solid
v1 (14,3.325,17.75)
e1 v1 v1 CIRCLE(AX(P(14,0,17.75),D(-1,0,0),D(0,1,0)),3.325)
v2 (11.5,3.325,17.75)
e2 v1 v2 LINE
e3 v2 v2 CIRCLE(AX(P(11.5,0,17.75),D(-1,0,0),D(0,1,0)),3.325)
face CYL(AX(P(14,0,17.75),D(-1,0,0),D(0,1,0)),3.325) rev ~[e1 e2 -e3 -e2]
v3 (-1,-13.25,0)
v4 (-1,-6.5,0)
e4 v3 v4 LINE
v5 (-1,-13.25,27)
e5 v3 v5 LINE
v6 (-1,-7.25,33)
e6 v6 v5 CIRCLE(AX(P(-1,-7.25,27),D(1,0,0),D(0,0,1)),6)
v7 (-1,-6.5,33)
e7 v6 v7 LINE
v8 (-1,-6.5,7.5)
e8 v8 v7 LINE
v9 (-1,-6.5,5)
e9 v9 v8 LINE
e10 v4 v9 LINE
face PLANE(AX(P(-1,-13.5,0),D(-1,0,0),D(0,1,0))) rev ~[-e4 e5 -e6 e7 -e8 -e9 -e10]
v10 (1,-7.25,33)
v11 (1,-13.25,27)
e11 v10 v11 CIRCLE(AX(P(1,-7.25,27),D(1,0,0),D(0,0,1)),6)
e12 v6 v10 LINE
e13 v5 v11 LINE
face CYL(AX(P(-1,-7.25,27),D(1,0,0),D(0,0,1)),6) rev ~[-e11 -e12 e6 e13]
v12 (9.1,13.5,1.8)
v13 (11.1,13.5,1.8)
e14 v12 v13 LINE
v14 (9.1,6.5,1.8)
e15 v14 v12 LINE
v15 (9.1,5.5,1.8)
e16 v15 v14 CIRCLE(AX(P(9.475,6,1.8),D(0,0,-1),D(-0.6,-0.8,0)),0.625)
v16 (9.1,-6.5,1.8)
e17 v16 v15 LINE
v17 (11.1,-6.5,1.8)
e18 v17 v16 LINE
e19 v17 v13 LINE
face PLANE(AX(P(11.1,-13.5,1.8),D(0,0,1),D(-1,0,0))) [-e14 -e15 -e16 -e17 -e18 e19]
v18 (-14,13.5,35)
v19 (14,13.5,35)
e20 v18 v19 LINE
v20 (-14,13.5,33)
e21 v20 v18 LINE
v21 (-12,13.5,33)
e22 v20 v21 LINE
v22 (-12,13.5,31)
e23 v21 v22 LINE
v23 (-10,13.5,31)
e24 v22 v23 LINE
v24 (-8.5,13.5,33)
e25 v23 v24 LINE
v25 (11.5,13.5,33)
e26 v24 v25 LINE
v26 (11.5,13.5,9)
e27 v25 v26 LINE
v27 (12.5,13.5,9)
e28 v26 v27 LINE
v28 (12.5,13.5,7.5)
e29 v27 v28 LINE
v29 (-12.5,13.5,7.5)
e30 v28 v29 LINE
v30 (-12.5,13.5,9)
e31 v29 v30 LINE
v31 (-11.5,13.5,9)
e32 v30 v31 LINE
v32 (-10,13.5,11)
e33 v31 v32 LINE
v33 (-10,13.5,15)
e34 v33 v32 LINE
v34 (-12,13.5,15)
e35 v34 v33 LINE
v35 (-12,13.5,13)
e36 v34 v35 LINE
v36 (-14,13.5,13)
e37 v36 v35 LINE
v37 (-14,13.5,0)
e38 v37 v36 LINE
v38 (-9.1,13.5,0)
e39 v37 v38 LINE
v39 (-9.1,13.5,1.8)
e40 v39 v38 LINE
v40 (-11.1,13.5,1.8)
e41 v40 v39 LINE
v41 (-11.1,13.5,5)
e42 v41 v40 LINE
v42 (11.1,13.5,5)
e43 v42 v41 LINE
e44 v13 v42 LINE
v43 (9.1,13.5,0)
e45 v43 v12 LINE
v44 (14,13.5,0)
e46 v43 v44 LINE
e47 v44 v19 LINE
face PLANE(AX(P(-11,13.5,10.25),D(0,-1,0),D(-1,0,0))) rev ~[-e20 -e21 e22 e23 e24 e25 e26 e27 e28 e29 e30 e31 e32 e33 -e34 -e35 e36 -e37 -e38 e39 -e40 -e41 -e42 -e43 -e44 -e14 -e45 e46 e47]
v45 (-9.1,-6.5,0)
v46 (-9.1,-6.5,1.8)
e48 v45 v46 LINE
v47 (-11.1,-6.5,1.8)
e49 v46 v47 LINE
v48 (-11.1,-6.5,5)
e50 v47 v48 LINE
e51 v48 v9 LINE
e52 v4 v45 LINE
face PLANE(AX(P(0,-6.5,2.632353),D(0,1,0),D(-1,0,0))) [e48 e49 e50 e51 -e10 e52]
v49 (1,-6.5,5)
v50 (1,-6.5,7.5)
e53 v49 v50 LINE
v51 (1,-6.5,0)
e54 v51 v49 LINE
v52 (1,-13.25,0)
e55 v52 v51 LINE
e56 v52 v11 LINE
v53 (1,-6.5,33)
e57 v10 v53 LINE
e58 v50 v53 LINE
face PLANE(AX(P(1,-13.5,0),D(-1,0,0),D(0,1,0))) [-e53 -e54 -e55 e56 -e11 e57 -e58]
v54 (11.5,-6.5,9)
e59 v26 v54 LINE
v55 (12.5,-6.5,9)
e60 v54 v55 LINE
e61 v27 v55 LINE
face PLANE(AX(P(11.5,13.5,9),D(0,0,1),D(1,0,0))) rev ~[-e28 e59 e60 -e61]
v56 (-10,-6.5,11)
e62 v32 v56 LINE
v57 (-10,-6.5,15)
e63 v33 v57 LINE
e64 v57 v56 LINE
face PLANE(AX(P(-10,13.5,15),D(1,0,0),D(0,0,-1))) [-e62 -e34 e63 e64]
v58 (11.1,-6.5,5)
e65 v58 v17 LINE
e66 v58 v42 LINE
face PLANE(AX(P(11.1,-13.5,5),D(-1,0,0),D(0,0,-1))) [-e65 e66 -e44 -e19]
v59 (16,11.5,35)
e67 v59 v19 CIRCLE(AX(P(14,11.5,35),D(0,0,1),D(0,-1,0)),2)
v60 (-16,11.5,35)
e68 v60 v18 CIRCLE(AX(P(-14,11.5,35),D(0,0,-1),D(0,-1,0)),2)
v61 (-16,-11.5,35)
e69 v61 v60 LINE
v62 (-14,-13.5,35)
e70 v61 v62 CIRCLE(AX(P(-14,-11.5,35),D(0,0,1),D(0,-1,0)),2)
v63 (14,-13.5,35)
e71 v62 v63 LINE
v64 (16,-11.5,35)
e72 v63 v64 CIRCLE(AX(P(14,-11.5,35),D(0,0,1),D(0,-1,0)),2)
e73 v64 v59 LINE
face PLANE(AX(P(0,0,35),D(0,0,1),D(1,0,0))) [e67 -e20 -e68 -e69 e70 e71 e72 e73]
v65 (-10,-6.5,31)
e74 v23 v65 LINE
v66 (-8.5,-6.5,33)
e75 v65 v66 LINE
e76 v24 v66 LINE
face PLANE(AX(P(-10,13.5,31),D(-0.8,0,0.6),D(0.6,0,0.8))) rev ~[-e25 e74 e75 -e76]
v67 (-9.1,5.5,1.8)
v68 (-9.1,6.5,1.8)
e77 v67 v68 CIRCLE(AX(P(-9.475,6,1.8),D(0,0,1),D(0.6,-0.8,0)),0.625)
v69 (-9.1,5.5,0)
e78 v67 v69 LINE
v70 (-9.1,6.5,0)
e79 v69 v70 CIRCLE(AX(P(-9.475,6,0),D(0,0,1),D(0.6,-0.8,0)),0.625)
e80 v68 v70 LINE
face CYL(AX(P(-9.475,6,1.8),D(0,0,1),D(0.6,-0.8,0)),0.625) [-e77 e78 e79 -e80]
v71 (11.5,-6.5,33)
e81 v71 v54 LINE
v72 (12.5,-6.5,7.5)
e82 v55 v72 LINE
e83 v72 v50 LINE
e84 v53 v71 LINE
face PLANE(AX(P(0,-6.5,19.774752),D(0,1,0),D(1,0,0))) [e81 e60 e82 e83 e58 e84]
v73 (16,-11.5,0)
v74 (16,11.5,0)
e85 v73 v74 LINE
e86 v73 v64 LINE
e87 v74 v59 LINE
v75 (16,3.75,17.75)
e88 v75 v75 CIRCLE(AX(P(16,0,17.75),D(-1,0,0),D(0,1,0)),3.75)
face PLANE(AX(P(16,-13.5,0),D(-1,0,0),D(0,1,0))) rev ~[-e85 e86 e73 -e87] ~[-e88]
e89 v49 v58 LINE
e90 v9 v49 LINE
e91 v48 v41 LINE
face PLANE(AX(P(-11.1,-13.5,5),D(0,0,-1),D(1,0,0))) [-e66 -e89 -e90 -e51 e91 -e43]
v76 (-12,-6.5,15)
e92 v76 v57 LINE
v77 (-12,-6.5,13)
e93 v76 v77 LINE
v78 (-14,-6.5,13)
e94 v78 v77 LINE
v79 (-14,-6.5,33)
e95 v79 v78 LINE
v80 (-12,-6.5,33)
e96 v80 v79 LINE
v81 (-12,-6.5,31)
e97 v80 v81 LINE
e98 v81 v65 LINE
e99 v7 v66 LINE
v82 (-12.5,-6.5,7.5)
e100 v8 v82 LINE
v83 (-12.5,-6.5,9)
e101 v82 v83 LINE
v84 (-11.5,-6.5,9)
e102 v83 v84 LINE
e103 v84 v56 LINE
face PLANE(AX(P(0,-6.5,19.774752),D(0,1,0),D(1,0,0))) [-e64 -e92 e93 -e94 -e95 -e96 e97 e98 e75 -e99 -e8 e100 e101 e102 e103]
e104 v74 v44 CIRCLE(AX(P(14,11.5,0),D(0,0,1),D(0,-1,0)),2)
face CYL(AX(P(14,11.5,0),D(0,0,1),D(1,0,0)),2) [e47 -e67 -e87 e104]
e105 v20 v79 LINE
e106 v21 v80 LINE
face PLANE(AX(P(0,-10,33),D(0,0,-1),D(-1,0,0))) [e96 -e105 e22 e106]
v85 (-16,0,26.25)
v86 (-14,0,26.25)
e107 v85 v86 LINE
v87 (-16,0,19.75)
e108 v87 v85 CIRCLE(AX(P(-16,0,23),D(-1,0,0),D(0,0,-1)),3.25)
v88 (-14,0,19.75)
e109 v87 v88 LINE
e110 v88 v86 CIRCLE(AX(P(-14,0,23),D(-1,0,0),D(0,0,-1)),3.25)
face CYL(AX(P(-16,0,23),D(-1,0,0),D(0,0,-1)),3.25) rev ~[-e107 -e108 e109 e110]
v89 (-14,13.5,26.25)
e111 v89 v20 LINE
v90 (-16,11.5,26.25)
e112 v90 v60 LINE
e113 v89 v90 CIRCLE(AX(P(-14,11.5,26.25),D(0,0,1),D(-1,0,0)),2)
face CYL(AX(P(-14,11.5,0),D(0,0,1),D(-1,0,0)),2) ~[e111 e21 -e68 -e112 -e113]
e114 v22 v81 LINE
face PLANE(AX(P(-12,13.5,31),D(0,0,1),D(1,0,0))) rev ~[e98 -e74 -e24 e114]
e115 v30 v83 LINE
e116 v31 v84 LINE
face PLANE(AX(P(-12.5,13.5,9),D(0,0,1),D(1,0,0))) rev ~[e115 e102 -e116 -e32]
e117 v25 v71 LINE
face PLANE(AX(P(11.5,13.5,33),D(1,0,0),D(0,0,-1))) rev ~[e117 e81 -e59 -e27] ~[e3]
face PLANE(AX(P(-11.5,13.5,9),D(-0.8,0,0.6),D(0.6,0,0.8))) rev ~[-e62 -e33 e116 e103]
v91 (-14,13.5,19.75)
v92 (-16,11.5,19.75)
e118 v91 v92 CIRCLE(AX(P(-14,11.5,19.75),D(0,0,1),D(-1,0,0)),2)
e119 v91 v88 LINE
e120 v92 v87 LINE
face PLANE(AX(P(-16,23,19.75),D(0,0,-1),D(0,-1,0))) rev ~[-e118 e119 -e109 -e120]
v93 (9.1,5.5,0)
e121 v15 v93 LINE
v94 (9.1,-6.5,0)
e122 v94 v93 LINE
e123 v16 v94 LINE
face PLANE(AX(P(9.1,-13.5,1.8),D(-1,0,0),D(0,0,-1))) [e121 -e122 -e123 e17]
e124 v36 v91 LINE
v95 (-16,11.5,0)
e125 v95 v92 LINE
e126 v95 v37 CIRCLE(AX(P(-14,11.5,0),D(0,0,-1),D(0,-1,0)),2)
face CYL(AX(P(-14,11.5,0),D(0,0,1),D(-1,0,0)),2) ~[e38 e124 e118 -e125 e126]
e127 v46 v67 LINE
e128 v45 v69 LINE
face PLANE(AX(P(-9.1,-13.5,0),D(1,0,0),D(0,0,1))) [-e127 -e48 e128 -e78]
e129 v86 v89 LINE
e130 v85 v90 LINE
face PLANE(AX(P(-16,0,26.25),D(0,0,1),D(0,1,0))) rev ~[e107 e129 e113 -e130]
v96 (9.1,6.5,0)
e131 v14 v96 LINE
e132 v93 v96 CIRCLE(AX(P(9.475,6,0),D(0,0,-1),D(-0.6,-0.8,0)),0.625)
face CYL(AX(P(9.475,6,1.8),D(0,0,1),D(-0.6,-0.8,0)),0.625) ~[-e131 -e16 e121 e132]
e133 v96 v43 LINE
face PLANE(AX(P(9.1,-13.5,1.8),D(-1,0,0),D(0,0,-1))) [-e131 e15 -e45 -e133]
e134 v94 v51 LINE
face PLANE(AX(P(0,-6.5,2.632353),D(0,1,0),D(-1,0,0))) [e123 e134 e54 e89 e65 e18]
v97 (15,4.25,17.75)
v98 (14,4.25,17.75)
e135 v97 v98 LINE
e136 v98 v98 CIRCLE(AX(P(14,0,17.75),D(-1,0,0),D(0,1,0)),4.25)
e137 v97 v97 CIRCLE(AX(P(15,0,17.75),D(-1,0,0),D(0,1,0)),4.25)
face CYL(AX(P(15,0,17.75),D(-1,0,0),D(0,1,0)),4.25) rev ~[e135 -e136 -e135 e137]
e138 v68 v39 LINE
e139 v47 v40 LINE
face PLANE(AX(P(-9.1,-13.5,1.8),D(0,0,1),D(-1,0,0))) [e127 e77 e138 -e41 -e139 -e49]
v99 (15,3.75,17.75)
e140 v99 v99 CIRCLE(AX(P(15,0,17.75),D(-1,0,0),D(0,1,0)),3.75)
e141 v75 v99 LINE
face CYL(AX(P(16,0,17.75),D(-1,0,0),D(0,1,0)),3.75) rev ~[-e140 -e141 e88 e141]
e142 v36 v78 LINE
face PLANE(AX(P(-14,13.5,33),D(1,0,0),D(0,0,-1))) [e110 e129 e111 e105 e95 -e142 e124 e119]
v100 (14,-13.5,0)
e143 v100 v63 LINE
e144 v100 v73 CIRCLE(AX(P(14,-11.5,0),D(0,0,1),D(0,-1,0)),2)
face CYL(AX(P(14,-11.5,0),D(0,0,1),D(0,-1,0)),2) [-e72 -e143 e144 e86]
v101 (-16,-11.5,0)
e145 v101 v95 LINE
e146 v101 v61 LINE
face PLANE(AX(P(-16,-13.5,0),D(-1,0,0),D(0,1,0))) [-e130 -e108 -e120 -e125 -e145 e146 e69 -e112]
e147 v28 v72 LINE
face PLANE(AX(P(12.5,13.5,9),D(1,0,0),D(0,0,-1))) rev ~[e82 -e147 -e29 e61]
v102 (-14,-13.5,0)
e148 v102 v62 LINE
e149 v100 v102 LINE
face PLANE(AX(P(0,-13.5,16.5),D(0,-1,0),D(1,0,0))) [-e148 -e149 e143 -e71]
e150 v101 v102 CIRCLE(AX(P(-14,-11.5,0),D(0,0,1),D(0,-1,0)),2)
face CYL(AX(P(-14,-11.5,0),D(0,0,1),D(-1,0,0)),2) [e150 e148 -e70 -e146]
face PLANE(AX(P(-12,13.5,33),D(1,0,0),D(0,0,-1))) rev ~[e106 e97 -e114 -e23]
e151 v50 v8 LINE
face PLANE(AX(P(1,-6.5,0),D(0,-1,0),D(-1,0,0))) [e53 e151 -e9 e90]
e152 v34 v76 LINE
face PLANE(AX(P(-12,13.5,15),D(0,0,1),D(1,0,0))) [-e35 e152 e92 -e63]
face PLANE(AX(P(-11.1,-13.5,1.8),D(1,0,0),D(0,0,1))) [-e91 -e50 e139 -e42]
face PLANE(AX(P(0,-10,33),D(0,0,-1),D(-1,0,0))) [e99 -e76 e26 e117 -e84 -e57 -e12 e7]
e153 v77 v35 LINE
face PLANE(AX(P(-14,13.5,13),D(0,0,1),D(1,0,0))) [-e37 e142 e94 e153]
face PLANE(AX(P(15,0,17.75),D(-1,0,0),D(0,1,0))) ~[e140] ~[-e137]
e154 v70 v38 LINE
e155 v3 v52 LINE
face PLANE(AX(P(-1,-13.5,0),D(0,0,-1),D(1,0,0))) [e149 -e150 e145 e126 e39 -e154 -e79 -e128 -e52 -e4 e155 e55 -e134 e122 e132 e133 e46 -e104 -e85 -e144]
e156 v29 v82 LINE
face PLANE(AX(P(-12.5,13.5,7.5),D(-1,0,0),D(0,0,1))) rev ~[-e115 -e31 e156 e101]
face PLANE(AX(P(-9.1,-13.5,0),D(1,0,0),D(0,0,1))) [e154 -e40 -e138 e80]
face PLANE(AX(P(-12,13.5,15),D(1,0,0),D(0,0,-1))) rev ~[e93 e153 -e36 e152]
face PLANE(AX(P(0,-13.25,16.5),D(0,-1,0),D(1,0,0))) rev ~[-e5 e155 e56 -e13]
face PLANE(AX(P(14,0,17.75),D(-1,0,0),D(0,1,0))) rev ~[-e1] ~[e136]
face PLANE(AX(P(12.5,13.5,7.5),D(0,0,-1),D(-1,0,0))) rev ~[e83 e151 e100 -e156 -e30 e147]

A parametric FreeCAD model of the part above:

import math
import FreeCAD as App
import Part
import Sketcher
from FreeCAD import Vector
Q = App.Units.Quantity


def edges_at(feature, points):
    """Names of the edges that pass closest to the given points."""
    edges = feature.Shape.Edges
    near = lambda p: min(range(len(edges)), key=lambda i: edges[i].distToShape(Part.Vertex(*p))[0])
    return sorted({f"Edge{near(p) + 1}" for p in points})

doc = App.newDocument("Part")
body = doc.addObject("PartDesign::Body", "Body")

# Sketch on XY plane
sketch1 = body.newObject("Sketcher::SketchObject", "Sketch")
sketch1.AttachmentSupport = (doc.getObject("XY_Plane"), [""])
sketch1.MapMode = "FlatFace"
sketch1.addGeometry(Part.LineSegment(Vector(-16, 14, 0), Vector(-16, -14, 0)), False)
sketch1.addGeometry(Part.LineSegment(Vector(-16, -14, 0), Vector(16, -14, 0)), False)
sketch1.addGeometry(Part.LineSegment(Vector(16, -14, 0), Vector(16, 14, 0)), False)
sketch1.addGeometry(Part.LineSegment(Vector(16, 14, 0), Vector(-16, 14, 0)), False)
sketch1.addConstraint(Sketcher.Constraint("Coincident", 0, 2, 1, 1))
sketch1.addConstraint(Sketcher.Constraint("Coincident", 1, 2, 2, 1))
sketch1.addConstraint(Sketcher.Constraint("Coincident", 2, 2, 3, 1))
sketch1.addConstraint(Sketcher.Constraint("Coincident", 3, 2, 0, 1))
sketch1.addConstraint(Sketcher.Constraint("Vertical", 0))
sketch1.addConstraint(Sketcher.Constraint("Horizontal", 1))
sketch1.addConstraint(Sketcher.Constraint("Vertical", 2))
sketch1.addConstraint(Sketcher.Constraint("Horizontal", 3))
sketch1.addConstraint(Sketcher.Constraint("Symmetric", 0, 2, 2, 2, -1, 1))
sketch1.addConstraint(Sketcher.Constraint("DistanceX", 1, 1, 1, 2, Q("32 mm")))
sketch1.addConstraint(Sketcher.Constraint("DistanceY", 0, 2, 0, 1, Q("27 mm")))
pad1 = body.newObject("PartDesign::Pad", "Pad")
pad1.Profile = sketch1
pad1.Length = 35
doc.recompute()

fillet = body.newObject("PartDesign::Fillet", "Fillet")
fillet.Base = (pad1, edges_at(pad1, [
    (16, -13.5, 17.5),
    (-16, -13.5, 17.5),
    (-16, 13.5, 17.5),
    (16, 13.5, 17.5),
]))
fillet.Radius = 2

# Sketch on XZ plane
sketch2 = body.newObject("Sketcher::SketchObject", "Sketch001")
sketch2.AttachmentSupport = (doc.getObject("XZ_Plane"), [""])
sketch2.MapMode = "FlatFace"
sketch2.AttachmentOffset = App.Placement(Vector(0, 0, 13.5), App.Rotation())
sketch2.addGeometry(Part.LineSegment(Vector(-9.1, 1.8, 0), Vector(-9.1, 0, 0)), False)
sketch2.addGeometry(Part.LineSegment(Vector(-9.1, 0, 0), Vector(9.1, 0, 0)), False)
sketch2.addGeometry(Part.LineSegment(Vector(9.1, 0, 0), Vector(9.1, 1.8, 0)), False)
sketch2.addGeometry(Part.LineSegment(Vector(9.1, 1.8, 0), Vector(11.1, 1.8, 0)), False)
sketch2.addGeometry(Part.LineSegment(Vector(11.1, 1.8, 0), Vector(11.1, 5, 0)), False)
sketch2.addGeometry(Part.LineSegment(Vector(11.1, 5, 0), Vector(-11.1, 5, 0)), False)
sketch2.addGeometry(Part.LineSegment(Vector(-11.1, 5, 0), Vector(-11.1, 1.8, 0)), False)
sketch2.addGeometry(Part.LineSegment(Vector(-11.1, 1.8, 0), Vector(-9.1, 1.8, 0)), False)
sketch2.addConstraint(Sketcher.Constraint("Coincident", 0, 2, 1, 1))
sketch2.addConstraint(Sketcher.Constraint("Coincident", 1, 2, 2, 1))
sketch2.addConstraint(Sketcher.Constraint("Coincident", 2, 2, 3, 1))
sketch2.addConstraint(Sketcher.Constraint("Coincident", 3, 2, 4, 1))
sketch2.addConstraint(Sketcher.Constraint("Coincident", 4, 2, 5, 1))
sketch2.addConstraint(Sketcher.Constraint("Coincident", 5, 2, 6, 1))
sketch2.addConstraint(Sketcher.Constraint("Coincident", 6, 2, 7, 1))
sketch2.addConstraint(Sketcher.Constraint("Coincident", 7, 2, 0, 1))
sketch2.addConstraint(Sketcher.Constraint("Vertical", 0))
sketch2.addConstraint(Sketcher.Constraint("Horizontal", 1))
sketch2.addConstraint(Sketcher.Constraint("Vertical", 2))
sketch2.addConstraint(Sketcher.Constraint("Horizontal", 3))
sketch2.addConstraint(Sketcher.Constraint("Vertical", 4))
sketch2.addConstraint(Sketcher.Constraint("Horizontal", 5))
sketch2.addConstraint(Sketcher.Constraint("Vertical", 6))
sketch2.addConstraint(Sketcher.Constraint("Horizontal", 7))
sketch2.addConstraint(Sketcher.Constraint("Symmetric", 0, 2, 1, 2, -1, 1))
sketch2.addConstraint(Sketcher.Constraint("Symmetric", 3, 2, 6, 2, -2))
sketch2.addConstraint(Sketcher.Constraint("DistanceX", 3, 1, 3, 2, Q("2 mm")))
sketch2.addConstraint(Sketcher.Constraint("DistanceX", 1, 1, 1, 2, Q("18.2 mm")))
sketch2.addConstraint(Sketcher.Constraint("DistanceY", 0, 2, 0, 1, Q("1.8 mm")))
sketch2.addConstraint(Sketcher.Constraint("DistanceY", 4, 1, 4, 2, Q("3.2 mm")))
pocket1 = body.newObject("PartDesign::Pocket", "Pocket")
pocket1.Profile = sketch2
pocket1.Type = "ThroughAll"
pocket1.Midplane = True

# Sketch on XZ plane
sketch3 = body.newObject("Sketcher::SketchObject", "Sketch002")
sketch3.AttachmentSupport = (doc.getObject("XZ_Plane"), [""])
sketch3.MapMode = "FlatFace"
sketch3.AttachmentOffset = App.Placement(Vector(0, 0, 13.5), App.Rotation())
sketch3.addGeometry(Part.LineSegment(Vector(-9.1, 1.8, 0), Vector(-9.1, 0, 0)), False)
sketch3.addGeometry(Part.LineSegment(Vector(-9.1, 0, 0), Vector(9.1, 0, 0)), False)
sketch3.addGeometry(Part.LineSegment(Vector(9.1, 0, 0), Vector(9.1, 1.8, 0)), False)
sketch3.addGeometry(Part.LineSegment(Vector(9.1, 1.8, 0), Vector(11.1, 1.8, 0)), False)
sketch3.addGeometry(Part.LineSegment(Vector(11.1, 1.8, 0), Vector(11.1, 5, 0)), False)
sketch3.addGeometry(Part.LineSegment(Vector(11.1, 5, 0), Vector(-11.1, 5, 0)), False)
sketch3.addGeometry(Part.LineSegment(Vector(-11.1, 5, 0), Vector(-11.1, 1.8, 0)), False)
sketch3.addGeometry(Part.LineSegment(Vector(-11.1, 1.8, 0), Vector(-9.1, 1.8, 0)), False)
sketch3.addConstraint(Sketcher.Constraint("Coincident", 0, 2, 1, 1))
sketch3.addConstraint(Sketcher.Constraint("Coincident", 1, 2, 2, 1))
sketch3.addConstraint(Sketcher.Constraint("Coincident", 2, 2, 3, 1))
sketch3.addConstraint(Sketcher.Constraint("Coincident", 3, 2, 4, 1))
sketch3.addConstraint(Sketcher.Constraint("Coincident", 4, 2, 5, 1))
sketch3.addConstraint(Sketcher.Constraint("Coincident", 5, 2, 6, 1))
sketch3.addConstraint(Sketcher.Constraint("Coincident", 6, 2, 7, 1))
sketch3.addConstraint(Sketcher.Constraint("Coincident", 7, 2, 0, 1))
sketch3.addConstraint(Sketcher.Constraint("Vertical", 0))
sketch3.addConstraint(Sketcher.Constraint("Horizontal", 1))
sketch3.addConstraint(Sketcher.Constraint("Vertical", 2))
sketch3.addConstraint(Sketcher.Constraint("Horizontal", 3))
sketch3.addConstraint(Sketcher.Constraint("Vertical", 4))
sketch3.addConstraint(Sketcher.Constraint("Horizontal", 5))
sketch3.addConstraint(Sketcher.Constraint("Vertical", 6))
sketch3.addConstraint(Sketcher.Constraint("Horizontal", 7))
sketch3.addConstraint(Sketcher.Constraint("Symmetric", 0, 2, 1, 2, -1, 1))
sketch3.addConstraint(Sketcher.Constraint("Symmetric", 3, 2, 6, 2, -2))
sketch3.addConstraint(Sketcher.Constraint("DistanceX", 3, 1, 3, 2, Q("2 mm")))
sketch3.addConstraint(Sketcher.Constraint("DistanceX", 1, 1, 1, 2, Q("18.2 mm")))
sketch3.addConstraint(Sketcher.Constraint("DistanceY", 0, 2, 0, 1, Q("1.8 mm")))
sketch3.addConstraint(Sketcher.Constraint("DistanceY", 4, 1, 4, 2, Q("3.2 mm")))
pad2 = body.newObject("PartDesign::Pad", "Pad001")
pad2.Profile = sketch3
pad2.Length = 7
pad2.Reversed = True

# Sketch on XY plane
sketch4 = body.newObject("Sketcher::SketchObject", "Sketch003")
sketch4.AttachmentSupport = (doc.getObject("XY_Plane"), [""])
sketch4.MapMode = "FlatFace"
sketch4.AttachmentOffset = App.Placement(Vector(0, 0, 1.8), App.Rotation())
sketch4.addGeometry(Part.LineSegment(Vector(9.1, 6.5, 0), Vector(9.1, 5.5, 0)), False)
sketch4.addGeometry(Part.ArcOfCircle(Part.Circle(Vector(9.5, 6, 0), Vector(0, 0, 1), 0.6), math.radians(127), math.radians(233)), False)
sketch4.addConstraint(Sketcher.Constraint("Coincident", 0, 1, 1, 1))
sketch4.addConstraint(Sketcher.Constraint("Coincident", 1, 2, 0, 2))
sketch4.addConstraint(Sketcher.Constraint("Vertical", 0))
sketch4.addConstraint(Sketcher.Constraint("DistanceY", 0, 2, 0, 1, Q("1 mm")))
sketch4.addConstraint(Sketcher.Constraint("DistanceY", -1, 1, 1, 3, Q("6 mm")))
sketch4.addConstraint(Sketcher.Constraint("Radius", 1, Q("0.625 mm")))
sketch4.addConstraint(Sketcher.Constraint("DistanceX", -1, 1, 0, 1, Q("9.1 mm")))
pad3 = body.newObject("PartDesign::Pad", "Pad002")
pad3.Profile = sketch4
pad3.Length = 1.8
pad3.Reversed = True
doc.recompute()

mirrored = body.newObject("PartDesign::Mirrored", "Mirrored")
mirrored.Originals = [pad3]
mirrored.MirrorPlane = (doc.getObject("YZ_Plane"), [""])
body.Tip = mirrored

# Sketch on XY plane
sketch5 = body.newObject("Sketcher::SketchObject", "Sketch004")
sketch5.AttachmentSupport = (doc.getObject("XY_Plane"), [""])
sketch5.MapMode = "FlatFace"
sketch5.addGeometry(Part.LineSegment(Vector(1, -6.5, 0), Vector(1, -13.5, 0)), False)
sketch5.addGeometry(Part.LineSegment(Vector(1, -13.5, 0), Vector(-1, -13.5, 0)), False)
sketch5.addGeometry(Part.LineSegment(Vector(-1, -13.5, 0), Vector(-1, -6.5, 0)), False)
sketch5.addGeometry(Part.LineSegment(Vector(-1, -6.5, 0), Vector(1, -6.5, 0)), False)
sketch5.addConstraint(Sketcher.Constraint("Coincident", 0, 2, 1, 1))
sketch5.addConstraint(Sketcher.Constraint("Coincident", 1, 2, 2, 1))
sketch5.addConstraint(Sketcher.Constraint("Coincident", 2, 2, 3, 1))
sketch5.addConstraint(Sketcher.Constraint("Coincident", 3, 2, 0, 1))
sketch5.addConstraint(Sketcher.Constraint("Vertical", 0))
sketch5.addConstraint(Sketcher.Constraint("Horizontal", 1))
sketch5.addConstraint(Sketcher.Constraint("Vertical", 2))
sketch5.addConstraint(Sketcher.Constraint("Horizontal", 3))
sketch5.addConstraint(Sketcher.Constraint("DistanceX", 1, 2, 1, 1, Q("2 mm")))
sketch5.addConstraint(Sketcher.Constraint("DistanceY", 0, 2, 0, 1, Q("7 mm")))
sketch5.addConstraint(Sketcher.Constraint("DistanceX", -1, 1, 0, 2, Q("1 mm")))
sketch5.addConstraint(Sketcher.Constraint("DistanceY", 0, 2, -1, 1, Q("13.5 mm")))
pocket2 = body.newObject("PartDesign::Pocket", "Pocket001")
pocket2.Profile = sketch5
pocket2.Length = 33
pocket2.Reversed = True

# Sketch on XZ plane
sketch6 = body.newObject("Sketcher::SketchObject", "Sketch005")
sketch6.AttachmentSupport = (doc.getObject("XZ_Plane"), [""])
sketch6.MapMode = "FlatFace"
sketch6.AttachmentOffset = App.Placement(Vector(0, 0, -13.5), App.Rotation())
sketch6.addGeometry(Part.LineSegment(Vector(-12.5, 7.5, 0), Vector(-12.5, 9, 0)), False)
sketch6.addGeometry(Part.LineSegment(Vector(-12.5, 9, 0), Vector(-11.5, 9, 0)), False)
sketch6.addGeometry(Part.LineSegment(Vector(-11.5, 9, 0), Vector(-11.5, 33, 0)), False)
sketch6.addGeometry(Part.LineSegment(Vector(-11.5, 33, 0), Vector(11.5, 33, 0)), False)
sketch6.addGeometry(Part.LineSegment(Vector(11.5, 33, 0), Vector(11.5, 9, 0)), False)
sketch6.addGeometry(Part.LineSegment(Vector(11.5, 9, 0), Vector(12.5, 9, 0)), False)
sketch6.addGeometry(Part.LineSegment(Vector(12.5, 9, 0), Vector(12.5, 7.5, 0)), False)
sketch6.addGeometry(Part.LineSegment(Vector(12.5, 7.5, 0), Vector(-12.5, 7.5, 0)), False)
sketch6.addConstraint(Sketcher.Constraint("Coincident", 0, 2, 1, 1))
sketch6.addConstraint(Sketcher.Constraint("Coincident", 1, 2, 2, 1))
sketch6.addConstraint(Sketcher.Constraint("Coincident", 2, 2, 3, 1))
sketch6.addConstraint(Sketcher.Constraint("Coincident", 3, 2, 4, 1))
sketch6.addConstraint(Sketcher.Constraint("Coincident", 4, 2, 5, 1))
sketch6.addConstraint(Sketcher.Constraint("Coincident", 5, 2, 6, 1))
sketch6.addConstraint(Sketcher.Constraint("Coincident", 6, 2, 7, 1))
sketch6.addConstraint(Sketcher.Constraint("Coincident", 7, 2, 0, 1))
sketch6.addConstraint(Sketcher.Constraint("Vertical", 0))
sketch6.addConstraint(Sketcher.Constraint("Horizontal", 1))
sketch6.addConstraint(Sketcher.Constraint("Vertical", 2))
sketch6.addConstraint(Sketcher.Constraint("Horizontal", 3))
sketch6.addConstraint(Sketcher.Constraint("Vertical", 4))
sketch6.addConstraint(Sketcher.Constraint("Horizontal", 5))
sketch6.addConstraint(Sketcher.Constraint("Vertical", 6))
sketch6.addConstraint(Sketcher.Constraint("Horizontal", 7))
sketch6.addConstraint(Sketcher.Constraint("Symmetric", 1, 2, 4, 2, -2))
sketch6.addConstraint(Sketcher.Constraint("Equal", 1, 5))
sketch6.addConstraint(Sketcher.Constraint("DistanceX", 1, 1, 1, 2, Q("1 mm")))
sketch6.addConstraint(Sketcher.Constraint("DistanceX", 3, 1, 3, 2, Q("23 mm")))
sketch6.addConstraint(Sketcher.Constraint("DistanceY", 2, 1, 2, 2, Q("24 mm")))
sketch6.addConstraint(Sketcher.Constraint("DistanceY", 0, 1, 0, 2, Q("1.5 mm")))
sketch6.addConstraint(Sketcher.Constraint("DistanceY", -1, 1, 0, 2, Q("9 mm")))
pocket3 = body.newObject("PartDesign::Pocket", "Pocket002")
pocket3.Profile = sketch6
pocket3.Length = 20
pocket3.Reversed = True

# Sketch on XZ plane
sketch7 = body.newObject("Sketcher::SketchObject", "Sketch006")
sketch7.AttachmentSupport = (doc.getObject("XZ_Plane"), [""])
sketch7.MapMode = "FlatFace"
sketch7.AttachmentOffset = App.Placement(Vector(0, 0, 13.5), App.Rotation())
sketch7.addGeometry(Part.LineSegment(Vector(-1, 33, 0), Vector(-1, 0, 0)), False)
sketch7.addGeometry(Part.LineSegment(Vector(-1, 0, 0), Vector(1, 0, 0)), False)
sketch7.addGeometry(Part.LineSegment(Vector(1, 0, 0), Vector(1, 33, 0)), False)
sketch7.addGeometry(Part.LineSegment(Vector(1, 33, 0), Vector(-1, 33, 0)), False)
sketch7.addConstraint(Sketcher.Constraint("Coincident", 0, 2, 1, 1))
sketch7.addConstraint(Sketcher.Constraint("Coincident", 1, 2, 2, 1))
sketch7.addConstraint(Sketcher.Constraint("Coincident", 2, 2, 3, 1))
sketch7.addConstraint(Sketcher.Constraint("Coincident", 3, 2, 0, 1))
sketch7.addConstraint(Sketcher.Constraint("Vertical", 0))
sketch7.addConstraint(Sketcher.Constraint("Horizontal", 1))
sketch7.addConstraint(Sketcher.Constraint("Vertical", 2))
sketch7.addConstraint(Sketcher.Constraint("Horizontal", 3))
sketch7.addConstraint(Sketcher.Constraint("Symmetric", 0, 2, 1, 2, -1, 1))
sketch7.addConstraint(Sketcher.Constraint("DistanceX", 1, 1, 1, 2, Q("2 mm")))
sketch7.addConstraint(Sketcher.Constraint("DistanceY", 0, 2, 0, 1, Q("33 mm")))
pad4 = body.newObject("PartDesign::Pad", "Pad003")
pad4.Profile = sketch7
pad4.Length = 0.25
pad4.Reversed = True
doc.recompute()

fillet2 = body.newObject("PartDesign::Fillet", "Fillet001")
fillet2.Base = (pad4, edges_at(pad4, [(0, -13.25, 33)]))
fillet2.Radius = 6

# Sketch on XY plane
sketch8 = body.newObject("Sketcher::SketchObject", "Sketch007")
sketch8.AttachmentSupport = (doc.getObject("XY_Plane"), [""])
sketch8.MapMode = "FlatFace"
sketch8.AttachmentOffset = App.Placement(Vector(0, 0, 17.75), App.Rotation())
sketch8.addGeometry(Part.LineSegment(Vector(14, 4.2, 0), Vector(15, 4.2, 0)), False)
sketch8.addGeometry(Part.LineSegment(Vector(15, 4.2, 0), Vector(15, 3.8, 0)), False)
sketch8.addGeometry(Part.LineSegment(Vector(15, 3.8, 0), Vector(16, 3.8, 0)), False)
sketch8.addGeometry(Part.LineSegment(Vector(16, 3.8, 0), Vector(16, 0, 0)), False)
sketch8.addGeometry(Part.LineSegment(Vector(16, 0, 0), Vector(11.5, 0, 0)), False)
sketch8.addGeometry(Part.LineSegment(Vector(11.5, 0, 0), Vector(11.5, 3.3, 0)), False)
sketch8.addGeometry(Part.LineSegment(Vector(11.5, 3.3, 0), Vector(14, 3.3, 0)), False)
sketch8.addGeometry(Part.LineSegment(Vector(14, 3.3, 0), Vector(14, 4.2, 0)), False)
sketch8.addConstraint(Sketcher.Constraint("Coincident", 0, 2, 1, 1))
sketch8.addConstraint(Sketcher.Constraint("Coincident", 1, 2, 2, 1))
sketch8.addConstraint(Sketcher.Constraint("Coincident", 2, 2, 3, 1))
sketch8.addConstraint(Sketcher.Constraint("Coincident", 3, 2, 4, 1))
sketch8.addConstraint(Sketcher.Constraint("Coincident", 4, 2, 5, 1))
sketch8.addConstraint(Sketcher.Constraint("Coincident", 5, 2, 6, 1))
sketch8.addConstraint(Sketcher.Constraint("Coincident", 6, 2, 7, 1))
sketch8.addConstraint(Sketcher.Constraint("Coincident", 7, 2, 0, 1))
sketch8.addConstraint(Sketcher.Constraint("Horizontal", 0))
sketch8.addConstraint(Sketcher.Constraint("Vertical", 1))
sketch8.addConstraint(Sketcher.Constraint("Horizontal", 2))
sketch8.addConstraint(Sketcher.Constraint("Vertical", 3))
sketch8.addConstraint(Sketcher.Constraint("Horizontal", 4))
sketch8.addConstraint(Sketcher.Constraint("Vertical", 5))
sketch8.addConstraint(Sketcher.Constraint("Horizontal", 6))
sketch8.addConstraint(Sketcher.Constraint("Vertical", 7))
sketch8.addConstraint(Sketcher.Constraint("PointOnObject", 3, 2, -1))
sketch8.addConstraint(Sketcher.Constraint("Equal", 0, 2))
sketch8.addConstraint(Sketcher.Constraint("DistanceX", 0, 1, 0, 2, Q("1 mm")))
sketch8.addConstraint(Sketcher.Constraint("DistanceX", 4, 2, 4, 1, Q("4.5 mm")))
sketch8.addConstraint(Sketcher.Constraint("DistanceY", 1, 2, 1, 1, Q("0.5 mm")))
sketch8.addConstraint(Sketcher.Constraint("DistanceX", -1, 1, 0, 2, Q("15 mm")))
sketch8.addConstraint(Sketcher.Constraint("DistanceY", 3, 2, 3, 1, Q("3.75 mm")))
sketch8.addConstraint(Sketcher.Constraint("DistanceY", 5, 1, 5, 2, Q("3.325 mm")))
groove = body.newObject("PartDesign::Groove", "Groove")
groove.Profile = sketch8
groove.ReferenceAxis = (sketch8, ["H_Axis"])
groove.Angle = 360

# Sketch on YZ plane
sketch9 = body.newObject("Sketcher::SketchObject", "Sketch008")
sketch9.AttachmentSupport = (doc.getObject("YZ_Plane"), [""])
sketch9.MapMode = "FlatFace"
sketch9.AttachmentOffset = App.Placement(Vector(0, 0, -16), App.Rotation())
sketch9.addGeometry(Part.LineSegment(Vector(0, 19.8, 0), Vector(23, 19.8, 0)), False)
sketch9.addGeometry(Part.ArcOfCircle(Part.Circle(Vector(23, 23, 0), Vector(0, 0, 1), 3.2), math.radians(-90), math.radians(90)), False)
sketch9.addGeometry(Part.LineSegment(Vector(23, 26.2, 0), Vector(0, 26.2, 0)), False)
sketch9.addGeometry(Part.ArcOfCircle(Part.Circle(Vector(0, 23, 0), Vector(0, 0, 1), 3.2), math.radians(90), math.radians(270)), False)
sketch9.addConstraint(Sketcher.Constraint("Tangent", 0, 2, 1, 1))
sketch9.addConstraint(Sketcher.Constraint("Tangent", 1, 2, 2, 1))
sketch9.addConstraint(Sketcher.Constraint("Tangent", 2, 2, 3, 1))
sketch9.addConstraint(Sketcher.Constraint("Tangent", 3, 2, 0, 1))
sketch9.addConstraint(Sketcher.Constraint("Horizontal", 0))
sketch9.addConstraint(Sketcher.Constraint("Horizontal", 2))
sketch9.addConstraint(Sketcher.Constraint("PointOnObject", 3, 3, -2))
sketch9.addConstraint(Sketcher.Constraint("DistanceX", 0, 1, 0, 2, Q("23 mm")))
sketch9.addConstraint(Sketcher.Constraint("Radius", 1, Q("3.25 mm")))
sketch9.addConstraint(Sketcher.Constraint("DistanceY", -1, 1, 1, 3, Q("23 mm")))
pocket4 = body.newObject("PartDesign::Pocket", "Pocket003")
pocket4.Profile = sketch9
pocket4.Length = 4.5
pocket4.Reversed = True

# Sketch on XZ plane
sketch10 = body.newObject("Sketcher::SketchObject", "Sketch009")
sketch10.AttachmentSupport = (doc.getObject("XZ_Plane"), [""])
sketch10.MapMode = "FlatFace"
sketch10.AttachmentOffset = App.Placement(Vector(0, 0, -13.5), App.Rotation())
sketch10.addGeometry(Part.LineSegment(Vector(-14, 13, 0), Vector(-14, 33, 0)), False)
sketch10.addGeometry(Part.LineSegment(Vector(-14, 33, 0), Vector(-11.5, 33, 0)), False)
sketch10.addGeometry(Part.LineSegment(Vector(-11.5, 33, 0), Vector(-11.5, 13, 0)), False)
sketch10.addGeometry(Part.LineSegment(Vector(-11.5, 13, 0), Vector(-14, 13, 0)), False)
sketch10.addConstraint(Sketcher.Constraint("Coincident", 0, 2, 1, 1))
sketch10.addConstraint(Sketcher.Constraint("Coincident", 1, 2, 2, 1))
sketch10.addConstraint(Sketcher.Constraint("Coincident", 2, 2, 3, 1))
sketch10.addConstraint(Sketcher.Constraint("Coincident", 3, 2, 0, 1))
sketch10.addConstraint(Sketcher.Constraint("Vertical", 0))
sketch10.addConstraint(Sketcher.Constraint("Horizontal", 1))
sketch10.addConstraint(Sketcher.Constraint("Vertical", 2))
sketch10.addConstraint(Sketcher.Constraint("Horizontal", 3))
sketch10.addConstraint(Sketcher.Constraint("DistanceY", 0, 1, 0, 2, Q("20 mm")))
sketch10.addConstraint(Sketcher.Constraint("DistanceX", 1, 1, 1, 2, Q("2.5 mm")))
sketch10.addConstraint(Sketcher.Constraint("DistanceX", 0, 2, -1, 1, Q("14 mm")))
sketch10.addConstraint(Sketcher.Constraint("DistanceY", -1, 1, 0, 2, Q("33 mm")))
pocket5 = body.newObject("PartDesign::Pocket", "Pocket004")
pocket5.Profile = sketch10
pocket5.Length = 20
pocket5.Reversed = True

# Sketch on XZ plane
sketch11 = body.newObject("Sketcher::SketchObject", "Sketch010")
sketch11.AttachmentSupport = (doc.getObject("XZ_Plane"), [""])
sketch11.MapMode = "FlatFace"
sketch11.AttachmentOffset = App.Placement(Vector(0, 0, -13.5), App.Rotation())
sketch11.addGeometry(Part.LineSegment(Vector(-12, 11, 0), Vector(-12, 15, 0)), False)
sketch11.addGeometry(Part.LineSegment(Vector(-12, 15, 0), Vector(-10, 15, 0)), False)
sketch11.addGeometry(Part.LineSegment(Vector(-10, 15, 0), Vector(-10, 11, 0)), False)
sketch11.addGeometry(Part.LineSegment(Vector(-10, 11, 0), Vector(-12, 11, 0)), False)
sketch11.addGeometry(Part.LineSegment(Vector(-12, 31, 0), Vector(-12, 33, 0)), False)
sketch11.addGeometry(Part.LineSegment(Vector(-12, 33, 0), Vector(-10, 33, 0)), False)
sketch11.addGeometry(Part.LineSegment(Vector(-10, 33, 0), Vector(-10, 31, 0)), False)
sketch11.addGeometry(Part.LineSegment(Vector(-10, 31, 0), Vector(-12, 31, 0)), False)
sketch11.addConstraint(Sketcher.Constraint("Coincident", 0, 2, 1, 1))
sketch11.addConstraint(Sketcher.Constraint("Coincident", 1, 2, 2, 1))
sketch11.addConstraint(Sketcher.Constraint("Coincident", 2, 2, 3, 1))
sketch11.addConstraint(Sketcher.Constraint("Coincident", 3, 2, 0, 1))
sketch11.addConstraint(Sketcher.Constraint("Coincident", 4, 2, 5, 1))
sketch11.addConstraint(Sketcher.Constraint("Coincident", 5, 2, 6, 1))
sketch11.addConstraint(Sketcher.Constraint("Coincident", 6, 2, 7, 1))
sketch11.addConstraint(Sketcher.Constraint("Coincident", 7, 2, 4, 1))
sketch11.addConstraint(Sketcher.Constraint("Vertical", 0))
sketch11.addConstraint(Sketcher.Constraint("Horizontal", 1))
sketch11.addConstraint(Sketcher.Constraint("Vertical", 2))
sketch11.addConstraint(Sketcher.Constraint("Horizontal", 3))
sketch11.addConstraint(Sketcher.Constraint("Vertical", 4))
sketch11.addConstraint(Sketcher.Constraint("Horizontal", 5))
sketch11.addConstraint(Sketcher.Constraint("Vertical", 6))
sketch11.addConstraint(Sketcher.Constraint("Horizontal", 7))
sketch11.addConstraint(Sketcher.Constraint("Vertical", 3, 2, 4, 2))
sketch11.addConstraint(Sketcher.Constraint("Vertical", 2, 2, 5, 2))
sketch11.addConstraint(Sketcher.Constraint("Equal", 7, 4))
sketch11.addConstraint(Sketcher.Constraint("DistanceX", 1, 1, 1, 2, Q("2 mm")))
sketch11.addConstraint(Sketcher.Constraint("DistanceY", 0, 1, 0, 2, Q("4 mm")))
sketch11.addConstraint(Sketcher.Constraint("DistanceX", 0, 2, -1, 1, Q("12 mm")))
sketch11.addConstraint(Sketcher.Constraint("DistanceY", -1, 1, 0, 2, Q("15 mm")))
sketch11.addConstraint(Sketcher.Constraint("DistanceY", -1, 1, 4, 2, Q("33 mm")))
pad5 = body.newObject("PartDesign::Pad", "Pad004")
pad5.Profile = sketch11
pad5.Length = 20

# Sketch on XZ plane
sketch12 = body.newObject("Sketcher::SketchObject", "Sketch011")
sketch12.AttachmentSupport = (doc.getObject("XZ_Plane"), [""])
sketch12.MapMode = "FlatFace"
sketch12.AttachmentOffset = App.Placement(Vector(0, 0, -13.5), App.Rotation())
sketch12.addGeometry(Part.LineSegment(Vector(-10, 11, 0), Vector(-11.5, 9, 0)), False)
sketch12.addGeometry(Part.LineSegment(Vector(-11.5, 9, 0), Vector(-11.5, 11, 0)), False)
sketch12.addGeometry(Part.LineSegment(Vector(-11.5, 11, 0), Vector(-10, 11, 0)), False)
sketch12.addGeometry(Part.LineSegment(Vector(-8.5, 33, 0), Vector(-10, 31, 0)), False)
sketch12.addGeometry(Part.LineSegment(Vector(-10, 31, 0), Vector(-10, 33, 0)), False)
sketch12.addGeometry(Part.LineSegment(Vector(-10, 33, 0), Vector(-8.5, 33, 0)), False)
sketch12.addConstraint(Sketcher.Constraint("Coincident", 0, 2, 1, 1))
sketch12.addConstraint(Sketcher.Constraint("Coincident", 1, 2, 2, 1))
sketch12.addConstraint(Sketcher.Constraint("Coincident", 2, 2, 0, 1))
sketch12.addConstraint(Sketcher.Constraint("Coincident", 3, 2, 4, 1))
sketch12.addConstraint(Sketcher.Constraint("Coincident", 4, 2, 5, 1))
sketch12.addConstraint(Sketcher.Constraint("Coincident", 5, 2, 3, 1))
sketch12.addConstraint(Sketcher.Constraint("Vertical", 1))
sketch12.addConstraint(Sketcher.Constraint("Horizontal", 2))
sketch12.addConstraint(Sketcher.Constraint("Vertical", 4))
sketch12.addConstraint(Sketcher.Constraint("Horizontal", 5))
sketch12.addConstraint(Sketcher.Constraint("Parallel", 0, 3))
sketch12.addConstraint(Sketcher.Constraint("Vertical", 2, 2, 3, 2))
sketch12.addConstraint(Sketcher.Constraint("Equal", 2, 5))
sketch12.addConstraint(Sketcher.Constraint("DistanceY", 1, 1, 1, 2, Q("2 mm")))
sketch12.addConstraint(Sketcher.Constraint("DistanceX", 2, 1, 2, 2, Q("1.5 mm")))
sketch12.addConstraint(Sketcher.Constraint("DistanceY", -1, 1, 0, 2, Q("9 mm")))
sketch12.addConstraint(Sketcher.Constraint("DistanceX", 2, 2, -1, 1, Q("10 mm")))
sketch12.addConstraint(Sketcher.Constraint("DistanceY", -1, 1, 3, 2, Q("31 mm")))
pad6 = body.newObject("PartDesign::Pad", "Pad005")
pad6.Profile = sketch12
pad6.Length = 20

doc.recompute()
